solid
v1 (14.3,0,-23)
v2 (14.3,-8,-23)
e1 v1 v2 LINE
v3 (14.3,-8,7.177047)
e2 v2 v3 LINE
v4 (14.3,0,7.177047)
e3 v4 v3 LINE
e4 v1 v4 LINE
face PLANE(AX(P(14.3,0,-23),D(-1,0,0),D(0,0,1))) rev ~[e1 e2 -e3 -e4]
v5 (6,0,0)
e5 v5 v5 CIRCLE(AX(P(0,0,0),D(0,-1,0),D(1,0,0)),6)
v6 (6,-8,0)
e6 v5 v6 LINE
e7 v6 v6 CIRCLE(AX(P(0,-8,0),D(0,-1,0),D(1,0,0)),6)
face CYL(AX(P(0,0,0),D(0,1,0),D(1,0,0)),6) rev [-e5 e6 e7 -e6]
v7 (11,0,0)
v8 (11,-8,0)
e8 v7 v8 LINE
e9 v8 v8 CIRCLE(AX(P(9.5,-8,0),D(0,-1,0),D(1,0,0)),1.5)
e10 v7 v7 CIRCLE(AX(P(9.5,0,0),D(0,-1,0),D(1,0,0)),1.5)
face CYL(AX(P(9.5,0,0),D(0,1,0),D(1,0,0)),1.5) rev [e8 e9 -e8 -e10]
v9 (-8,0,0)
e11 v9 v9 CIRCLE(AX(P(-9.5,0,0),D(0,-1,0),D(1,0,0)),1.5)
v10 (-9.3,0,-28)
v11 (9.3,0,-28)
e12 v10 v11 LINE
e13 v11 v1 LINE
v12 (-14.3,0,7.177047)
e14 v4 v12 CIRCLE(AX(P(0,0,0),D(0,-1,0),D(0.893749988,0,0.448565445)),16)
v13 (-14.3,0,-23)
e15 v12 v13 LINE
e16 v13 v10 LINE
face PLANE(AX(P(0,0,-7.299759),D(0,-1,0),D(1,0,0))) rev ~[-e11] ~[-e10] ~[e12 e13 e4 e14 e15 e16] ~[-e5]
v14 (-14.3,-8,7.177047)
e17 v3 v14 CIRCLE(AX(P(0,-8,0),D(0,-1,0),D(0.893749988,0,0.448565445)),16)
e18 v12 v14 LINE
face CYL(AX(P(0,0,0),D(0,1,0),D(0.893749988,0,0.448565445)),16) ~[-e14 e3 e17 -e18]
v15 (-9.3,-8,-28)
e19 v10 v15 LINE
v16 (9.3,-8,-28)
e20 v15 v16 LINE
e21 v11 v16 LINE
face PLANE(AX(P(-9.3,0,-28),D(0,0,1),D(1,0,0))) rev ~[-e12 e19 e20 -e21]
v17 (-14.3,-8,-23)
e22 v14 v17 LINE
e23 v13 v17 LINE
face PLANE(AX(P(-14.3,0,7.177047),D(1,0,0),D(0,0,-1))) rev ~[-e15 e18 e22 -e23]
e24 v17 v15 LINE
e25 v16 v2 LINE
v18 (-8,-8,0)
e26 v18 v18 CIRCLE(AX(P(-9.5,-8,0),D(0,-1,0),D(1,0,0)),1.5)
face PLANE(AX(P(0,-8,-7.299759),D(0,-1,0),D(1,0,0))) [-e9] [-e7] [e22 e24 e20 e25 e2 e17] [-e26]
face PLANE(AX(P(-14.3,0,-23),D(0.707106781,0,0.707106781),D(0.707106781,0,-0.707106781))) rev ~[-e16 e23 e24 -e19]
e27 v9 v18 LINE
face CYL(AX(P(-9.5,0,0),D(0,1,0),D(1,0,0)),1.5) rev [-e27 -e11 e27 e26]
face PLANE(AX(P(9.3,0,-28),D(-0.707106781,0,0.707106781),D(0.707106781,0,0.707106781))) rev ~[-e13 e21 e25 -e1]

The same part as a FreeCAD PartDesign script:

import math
import FreeCAD as App
import Part
import Sketcher

V = App.Vector
Q = App.Units.Quantity

doc = App.newDocument("Part")
params = doc.addObject("Spreadsheet::Sheet", "Params")
for row, (alias, value) in enumerate([
    ("sketch1_diameter", "3 mm"),
    ("sketch1_diameter2", "12 mm"),
    ("sketch1_radius", "16 mm"),
    ("sketch1_width", "18.6 mm"),
    ("pad1_length", "8 mm"),
], start=1):
    params.set(f"A{row}", alias)
    params.set(f"B{row}", "=" + value)
    params.setAlias(f"B{row}", alias)

body = doc.addObject("PartDesign::Body", "Body")

sketch1 = body.newObject("Sketcher::SketchObject", "Sketch")
sketch1.AttachmentSupport = (doc.getObject("XZ_Plane"), [""])
sketch1.MapMode = "FlatFace"
sketch1.addGeometry(Part.LineSegment(V(-14.3, -23, 0), V(-9.3, -28, 0)), False)
sketch1.addGeometry(Part.LineSegment(V(-9.3, -28, 0), V(9.3, -28, 0)), False)
sketch1.addGeometry(Part.LineSegment(V(9.3, -28, 0), V(14.3, -23, 0)), False)
sketch1.addGeometry(Part.LineSegment(V(14.3, -23, 0), V(14.3, 7.2, 0)), False)
sketch1.addGeometry(Part.ArcOfCircle(Part.Circle(V(0, 0, 0), V(0, 0, 1), 16), math.radians(27), math.radians(153)), False)
sketch1.addGeometry(Part.LineSegment(V(-14.3, 7.2, 0), V(-14.3, -23, 0)), False)
sketch1.addGeometry(Part.Circle(V(-9.5, 0, 0), V(0, 0, 1), 1.5), False)
sketch1.addGeometry(Part.Circle(V(0, 0, 0), V(0, 0, 1), 6), False)
sketch1.addGeometry(Part.Circle(V(9.5, 0, 0), V(0, 0, 1), 1.5), False)
sketch1.addConstraint(Sketcher.Constraint("Coincident", 0, 2, 1, 1))
sketch1.addConstraint(Sketcher.Constraint("Coincident", 1, 2, 2, 1))
sketch1.addConstraint(Sketcher.Constraint("Coincident", 2, 2, 3, 1))
sketch1.addConstraint(Sketcher.Constraint("Coincident", 3, 2, 4, 1))
sketch1.addConstraint(Sketcher.Constraint("Coincident", 4, 2, 5, 1))
sketch1.addConstraint(Sketcher.Constraint("Coincident", 5, 2, 0, 1))
sketch1.addConstraint(Sketcher.Constraint("Horizontal", 1))
sketch1.addConstraint(Sketcher.Constraint("Vertical", 3))
sketch1.addConstraint(Sketcher.Constraint("Vertical", 5))
sketch1.addConstraint(Sketcher.Constraint("Coincident", 4, 3, -1, 1))
sketch1.addConstraint(Sketcher.Constraint("Coincident", 7, 3, -1, 1))
sketch1.addConstraint(Sketcher.Constraint("Equal", 6, 8))
sketch1.addConstraint(Sketcher.Constraint("Symmetric", 6, 3, 8, 3, -1, 1))
sketch1.addConstraint(Sketcher.Constraint("Symmetric", 2, 2, 5, 2, -2))
sketch1.addConstraint(Sketcher.Constraint("PointOnObject", 6, 3, -1))
sketch1.addConstraint(Sketcher.Constraint("Perpendicular", 0, 2))
sketch1.addConstraint(Sketcher.Constraint("Equal", 0, 2))
sketch1.addConstraint(Sketcher.Constraint("Diameter", 6, Q("3 mm")))
sketch1.addConstraint(Sketcher.Constraint("Diameter", 7, Q("12 mm")))
sketch1.addConstraint(Sketcher.Constraint("Radius", 4, Q("16 mm")))
sketch1.addConstraint(Sketcher.Constraint("DistanceX", 1, 1, 1, 2, Q("18.6 mm")))
sketch1.addConstraint(Sketcher.Constraint("DistanceY", 0, 2, -1, 1, Q("28 mm")))
sketch1.addConstraint(Sketcher.Constraint("DistanceY", 2, 2, -1, 1, Q("23 mm")))
sketch1.addConstraint(Sketcher.Constraint("DistanceX", 6, 3, 8, 3, Q("19 mm")))
sketch1.setExpression("Constraints[17]", "Params.sketch1_diameter")
sketch1.setExpression("Constraints[18]", "Params.sketch1_diameter2")
sketch1.setExpression("Constraints[19]", "Params.sketch1_radius")
sketch1.setExpression("Constraints[20]", "Params.sketch1_width")
pad1 = body.newObject("PartDesign::Pad", "Pad")
pad1.Profile = sketch1
pad1.setExpression("Length", "Params.pad1_length")

doc.recompute()
